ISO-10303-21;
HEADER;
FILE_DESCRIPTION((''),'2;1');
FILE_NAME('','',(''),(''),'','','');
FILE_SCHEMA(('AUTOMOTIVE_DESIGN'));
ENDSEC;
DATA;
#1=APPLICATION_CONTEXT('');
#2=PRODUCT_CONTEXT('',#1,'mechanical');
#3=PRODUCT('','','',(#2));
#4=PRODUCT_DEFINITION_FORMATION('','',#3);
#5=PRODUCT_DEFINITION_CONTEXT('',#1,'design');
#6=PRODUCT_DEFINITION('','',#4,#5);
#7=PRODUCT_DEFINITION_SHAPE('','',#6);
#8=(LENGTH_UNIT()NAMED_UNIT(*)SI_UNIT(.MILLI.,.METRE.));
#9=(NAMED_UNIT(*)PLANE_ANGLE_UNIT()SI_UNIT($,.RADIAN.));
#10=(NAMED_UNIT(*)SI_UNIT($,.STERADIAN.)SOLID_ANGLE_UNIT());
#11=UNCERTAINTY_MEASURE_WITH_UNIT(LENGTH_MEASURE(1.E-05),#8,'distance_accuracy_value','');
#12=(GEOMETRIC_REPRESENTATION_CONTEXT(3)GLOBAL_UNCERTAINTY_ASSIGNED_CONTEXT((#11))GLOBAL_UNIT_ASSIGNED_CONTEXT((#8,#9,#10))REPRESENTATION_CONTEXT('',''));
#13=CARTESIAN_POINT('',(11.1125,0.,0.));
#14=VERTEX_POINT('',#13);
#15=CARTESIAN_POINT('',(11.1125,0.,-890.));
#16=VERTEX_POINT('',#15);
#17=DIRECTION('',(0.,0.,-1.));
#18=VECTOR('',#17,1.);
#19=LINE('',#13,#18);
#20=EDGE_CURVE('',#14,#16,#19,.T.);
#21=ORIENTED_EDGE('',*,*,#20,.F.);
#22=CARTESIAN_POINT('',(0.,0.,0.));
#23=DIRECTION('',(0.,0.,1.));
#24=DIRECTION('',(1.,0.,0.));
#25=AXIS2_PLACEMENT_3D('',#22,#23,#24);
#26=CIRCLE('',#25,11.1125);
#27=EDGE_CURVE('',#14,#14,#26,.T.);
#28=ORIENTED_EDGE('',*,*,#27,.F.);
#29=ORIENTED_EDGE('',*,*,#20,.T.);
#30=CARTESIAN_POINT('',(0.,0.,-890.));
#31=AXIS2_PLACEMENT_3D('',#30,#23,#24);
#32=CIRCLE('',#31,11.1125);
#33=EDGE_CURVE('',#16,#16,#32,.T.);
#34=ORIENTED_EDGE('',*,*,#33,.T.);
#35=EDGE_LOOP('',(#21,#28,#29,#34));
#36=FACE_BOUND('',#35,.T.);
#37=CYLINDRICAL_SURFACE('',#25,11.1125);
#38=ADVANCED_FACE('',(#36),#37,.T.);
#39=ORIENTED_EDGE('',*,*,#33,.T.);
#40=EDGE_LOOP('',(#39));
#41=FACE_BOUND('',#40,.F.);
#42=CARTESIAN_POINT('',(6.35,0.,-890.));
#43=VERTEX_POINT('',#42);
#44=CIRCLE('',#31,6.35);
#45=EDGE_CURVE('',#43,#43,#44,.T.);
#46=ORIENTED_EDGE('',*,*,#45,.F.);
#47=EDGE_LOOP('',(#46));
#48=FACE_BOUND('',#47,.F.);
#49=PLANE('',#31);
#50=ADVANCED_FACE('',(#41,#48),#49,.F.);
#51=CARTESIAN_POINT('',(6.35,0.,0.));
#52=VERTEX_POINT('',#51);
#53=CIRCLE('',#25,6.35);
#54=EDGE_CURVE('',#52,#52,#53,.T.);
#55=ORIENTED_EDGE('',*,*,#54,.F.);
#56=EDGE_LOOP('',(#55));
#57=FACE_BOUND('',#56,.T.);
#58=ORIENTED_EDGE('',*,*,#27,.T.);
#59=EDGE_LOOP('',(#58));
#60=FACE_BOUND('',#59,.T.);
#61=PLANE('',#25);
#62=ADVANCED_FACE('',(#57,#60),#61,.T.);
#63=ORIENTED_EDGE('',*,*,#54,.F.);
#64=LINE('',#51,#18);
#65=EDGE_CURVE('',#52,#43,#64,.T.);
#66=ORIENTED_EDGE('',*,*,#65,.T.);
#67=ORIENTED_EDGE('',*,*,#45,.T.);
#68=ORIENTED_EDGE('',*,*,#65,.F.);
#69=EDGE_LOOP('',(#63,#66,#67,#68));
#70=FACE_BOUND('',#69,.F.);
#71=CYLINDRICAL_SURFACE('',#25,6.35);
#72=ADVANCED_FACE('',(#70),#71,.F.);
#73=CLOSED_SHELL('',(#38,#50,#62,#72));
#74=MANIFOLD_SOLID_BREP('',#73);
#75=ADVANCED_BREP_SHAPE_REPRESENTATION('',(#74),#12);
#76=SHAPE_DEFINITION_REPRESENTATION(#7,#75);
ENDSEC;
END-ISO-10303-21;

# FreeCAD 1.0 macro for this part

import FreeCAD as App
import Part
import Sketcher
Q = App.Units.Quantity

doc = App.newDocument("Part")
body = doc.addObject("PartDesign::Body", "Body")

sketch1 = doc.addObject("Sketcher::SketchObject", "Sketch")
body.addObject(sketch1)
sketch1.AttachmentSupport = (doc.XY_Plane, [""])
sketch1.MapMode = "FlatFace"
sketch1.addGeometry([
    Part.Circle(App.Vector(0, 0, 0), App.Vector(0, 0, 1), 11),
    Part.Circle(App.Vector(0, 0, 0), App.Vector(0, 0, 1), 6),
], False)
sketch1.addConstraint([
    Sketcher.Constraint("Coincident", 0, 3, -1, 1),
    Sketcher.Constraint("Coincident", 1, 3, -1, 1),
    Sketcher.Constraint("Diameter", 1, Q("0.5 in")),
    Sketcher.Constraint("Diameter", 0, Q("0.875 in")),
])
pad1 = doc.addObject("PartDesign::Pad", "Pad")
body.addObject(pad1)
pad1.Profile = sketch1
pad1.Length = 890
pad1.Reversed = True

doc.recompute()
